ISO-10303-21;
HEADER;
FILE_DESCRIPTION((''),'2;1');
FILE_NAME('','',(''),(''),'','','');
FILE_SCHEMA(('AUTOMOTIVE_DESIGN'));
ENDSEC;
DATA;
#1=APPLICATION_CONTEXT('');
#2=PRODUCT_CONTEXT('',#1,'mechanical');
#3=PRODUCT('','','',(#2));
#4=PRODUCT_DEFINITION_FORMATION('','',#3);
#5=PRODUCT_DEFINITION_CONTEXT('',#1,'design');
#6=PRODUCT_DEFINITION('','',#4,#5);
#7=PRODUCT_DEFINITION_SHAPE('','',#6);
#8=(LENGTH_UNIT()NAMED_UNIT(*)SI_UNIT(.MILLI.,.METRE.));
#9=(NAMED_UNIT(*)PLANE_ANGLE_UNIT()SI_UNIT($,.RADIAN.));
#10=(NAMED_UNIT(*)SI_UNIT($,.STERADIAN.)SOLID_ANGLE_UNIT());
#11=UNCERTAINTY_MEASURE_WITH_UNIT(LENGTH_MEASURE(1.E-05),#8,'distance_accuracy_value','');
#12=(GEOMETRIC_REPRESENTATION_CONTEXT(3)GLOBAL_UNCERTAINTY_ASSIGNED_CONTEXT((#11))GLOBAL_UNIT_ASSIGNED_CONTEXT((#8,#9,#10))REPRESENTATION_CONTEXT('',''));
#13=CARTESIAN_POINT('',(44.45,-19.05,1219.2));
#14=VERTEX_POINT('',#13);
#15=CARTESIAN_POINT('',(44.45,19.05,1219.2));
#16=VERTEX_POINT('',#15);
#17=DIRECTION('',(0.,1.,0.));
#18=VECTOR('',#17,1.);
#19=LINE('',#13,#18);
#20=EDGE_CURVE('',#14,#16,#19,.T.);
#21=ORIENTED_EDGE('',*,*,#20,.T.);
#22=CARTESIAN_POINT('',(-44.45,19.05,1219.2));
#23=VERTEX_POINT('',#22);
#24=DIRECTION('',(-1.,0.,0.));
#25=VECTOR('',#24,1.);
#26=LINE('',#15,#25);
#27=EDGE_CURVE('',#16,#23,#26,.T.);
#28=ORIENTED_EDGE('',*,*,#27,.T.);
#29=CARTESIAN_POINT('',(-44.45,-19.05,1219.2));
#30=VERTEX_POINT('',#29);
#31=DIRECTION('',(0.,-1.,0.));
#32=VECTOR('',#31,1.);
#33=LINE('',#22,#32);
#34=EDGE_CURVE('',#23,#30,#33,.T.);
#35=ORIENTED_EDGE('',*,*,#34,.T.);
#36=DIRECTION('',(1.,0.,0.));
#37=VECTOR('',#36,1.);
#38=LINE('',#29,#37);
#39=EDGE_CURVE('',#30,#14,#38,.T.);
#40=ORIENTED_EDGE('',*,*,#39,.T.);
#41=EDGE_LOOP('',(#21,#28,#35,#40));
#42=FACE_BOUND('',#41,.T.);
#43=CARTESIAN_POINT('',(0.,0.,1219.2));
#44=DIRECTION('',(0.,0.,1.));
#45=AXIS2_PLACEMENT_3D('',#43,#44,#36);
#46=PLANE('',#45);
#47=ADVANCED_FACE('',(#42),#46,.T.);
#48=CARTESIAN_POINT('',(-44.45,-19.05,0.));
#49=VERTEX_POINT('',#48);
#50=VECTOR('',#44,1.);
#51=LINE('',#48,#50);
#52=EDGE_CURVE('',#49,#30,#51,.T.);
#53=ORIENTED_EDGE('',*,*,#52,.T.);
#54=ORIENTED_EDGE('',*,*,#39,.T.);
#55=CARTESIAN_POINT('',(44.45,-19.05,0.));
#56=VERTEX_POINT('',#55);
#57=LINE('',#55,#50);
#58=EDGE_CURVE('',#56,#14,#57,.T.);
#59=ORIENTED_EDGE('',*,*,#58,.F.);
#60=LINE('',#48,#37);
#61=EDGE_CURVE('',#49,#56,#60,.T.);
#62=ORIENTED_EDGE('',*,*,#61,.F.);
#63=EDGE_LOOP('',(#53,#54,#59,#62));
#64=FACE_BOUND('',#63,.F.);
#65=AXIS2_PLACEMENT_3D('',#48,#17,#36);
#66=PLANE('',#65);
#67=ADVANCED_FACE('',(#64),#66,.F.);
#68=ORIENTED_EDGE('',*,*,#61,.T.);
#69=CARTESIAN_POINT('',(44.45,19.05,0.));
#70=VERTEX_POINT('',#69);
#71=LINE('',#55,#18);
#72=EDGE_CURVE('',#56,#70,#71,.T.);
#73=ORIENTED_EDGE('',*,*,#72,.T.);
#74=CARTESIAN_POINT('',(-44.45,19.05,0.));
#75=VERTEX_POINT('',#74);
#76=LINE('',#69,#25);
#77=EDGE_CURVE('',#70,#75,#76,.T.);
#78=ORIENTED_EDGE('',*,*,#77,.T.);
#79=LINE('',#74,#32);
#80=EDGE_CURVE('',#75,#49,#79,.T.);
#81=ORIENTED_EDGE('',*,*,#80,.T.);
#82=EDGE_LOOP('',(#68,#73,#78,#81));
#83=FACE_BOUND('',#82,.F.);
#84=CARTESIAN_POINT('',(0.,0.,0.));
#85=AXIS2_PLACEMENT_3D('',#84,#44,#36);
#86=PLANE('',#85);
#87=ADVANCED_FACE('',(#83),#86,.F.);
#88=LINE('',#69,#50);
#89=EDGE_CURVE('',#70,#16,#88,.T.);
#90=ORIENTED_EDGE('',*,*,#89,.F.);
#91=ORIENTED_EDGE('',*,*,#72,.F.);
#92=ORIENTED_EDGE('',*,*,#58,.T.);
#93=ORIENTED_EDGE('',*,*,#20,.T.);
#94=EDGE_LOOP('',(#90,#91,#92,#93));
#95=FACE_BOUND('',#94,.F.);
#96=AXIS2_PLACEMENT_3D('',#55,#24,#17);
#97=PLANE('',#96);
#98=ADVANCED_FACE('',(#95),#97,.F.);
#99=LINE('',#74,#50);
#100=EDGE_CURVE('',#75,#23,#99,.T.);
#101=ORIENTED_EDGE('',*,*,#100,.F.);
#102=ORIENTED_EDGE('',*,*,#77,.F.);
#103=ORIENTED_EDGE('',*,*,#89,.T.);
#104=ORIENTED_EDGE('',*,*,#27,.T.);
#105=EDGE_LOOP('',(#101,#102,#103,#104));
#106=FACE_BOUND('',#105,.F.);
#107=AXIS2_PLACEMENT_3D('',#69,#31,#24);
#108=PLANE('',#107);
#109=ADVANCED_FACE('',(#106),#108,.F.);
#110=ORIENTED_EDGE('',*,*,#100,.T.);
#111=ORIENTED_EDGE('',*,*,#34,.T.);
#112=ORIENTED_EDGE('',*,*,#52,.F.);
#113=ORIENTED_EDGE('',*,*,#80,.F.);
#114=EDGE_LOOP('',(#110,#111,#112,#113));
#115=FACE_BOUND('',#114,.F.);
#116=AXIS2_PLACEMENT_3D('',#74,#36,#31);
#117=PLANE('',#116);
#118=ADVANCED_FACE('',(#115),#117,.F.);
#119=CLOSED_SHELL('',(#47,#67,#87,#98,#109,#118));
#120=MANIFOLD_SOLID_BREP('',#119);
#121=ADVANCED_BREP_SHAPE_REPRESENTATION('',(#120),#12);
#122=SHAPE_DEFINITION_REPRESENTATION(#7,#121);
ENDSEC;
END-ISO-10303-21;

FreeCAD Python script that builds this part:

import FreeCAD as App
import Part
import Sketcher

V = App.Vector
Q = App.Units.Quantity


def add_polygon(sketch, points):
    """Adds a closed chain of lines whose ends are joined by coincident constraints."""
    first, n = sketch.GeometryCount, len(points)
    for a, b in zip(points, points[1:] + points[:1]):
        sketch.addGeometry(Part.LineSegment(App.Vector(*a, 0), App.Vector(*b, 0)), False)
    for i in range(n):
        sketch.addConstraint(Sketcher.Constraint("Coincident", first + i, 2, first + (i + 1) % n, 1))

doc = App.newDocument("Part")
params = doc.addObject("Spreadsheet::Sheet", "Params")
for row, (alias, value) in enumerate([
    ("sketch1_width", "3.5 in"),
    ("sketch1_height", "1.5 in"),
    ("pad1_length", "48 in"),
], start=1):
    params.set(f"A{row}", alias)
    params.set(f"B{row}", "=" + value)
    params.setAlias(f"B{row}", alias)

body = doc.addObject("PartDesign::Body", "Body")

# Sketch on XY plane
sketch1 = body.newObject("Sketcher::SketchObject", "Sketch")
sketch1.AttachmentSupport = (doc.getObject("XY_Plane"), [""])
sketch1.MapMode = "FlatFace"
add_polygon(sketch1, [(-44, 19), (-44, -19), (44, -19), (44, 19)])  # lines 0-3
sketch1.addConstraint(Sketcher.Constraint("Vertical", 0))
sketch1.addConstraint(Sketcher.Constraint("Horizontal", 1))
sketch1.addConstraint(Sketcher.Constraint("Vertical", 2))
sketch1.addConstraint(Sketcher.Constraint("Horizontal", 3))
sketch1.addConstraint(Sketcher.Constraint("Symmetric", 0, 2, 2, 2, -1, 1))
sketch1.addConstraint(Sketcher.Constraint("DistanceX", 1, 1, 1, 2, Q("3.5 in")))
sketch1.addConstraint(Sketcher.Constraint("DistanceY", 0, 2, 0, 1, Q("1.5 in")))
sketch1.setExpression("Constraints[9]", "Params.sketch1_width")
sketch1.setExpression("Constraints[10]", "Params.sketch1_height")
pad1 = body.newObject("PartDesign::Pad", "Pad")
pad1.Profile = sketch1
pad1.setExpression("Length", "Params.pad1_length")

doc.recompute()
